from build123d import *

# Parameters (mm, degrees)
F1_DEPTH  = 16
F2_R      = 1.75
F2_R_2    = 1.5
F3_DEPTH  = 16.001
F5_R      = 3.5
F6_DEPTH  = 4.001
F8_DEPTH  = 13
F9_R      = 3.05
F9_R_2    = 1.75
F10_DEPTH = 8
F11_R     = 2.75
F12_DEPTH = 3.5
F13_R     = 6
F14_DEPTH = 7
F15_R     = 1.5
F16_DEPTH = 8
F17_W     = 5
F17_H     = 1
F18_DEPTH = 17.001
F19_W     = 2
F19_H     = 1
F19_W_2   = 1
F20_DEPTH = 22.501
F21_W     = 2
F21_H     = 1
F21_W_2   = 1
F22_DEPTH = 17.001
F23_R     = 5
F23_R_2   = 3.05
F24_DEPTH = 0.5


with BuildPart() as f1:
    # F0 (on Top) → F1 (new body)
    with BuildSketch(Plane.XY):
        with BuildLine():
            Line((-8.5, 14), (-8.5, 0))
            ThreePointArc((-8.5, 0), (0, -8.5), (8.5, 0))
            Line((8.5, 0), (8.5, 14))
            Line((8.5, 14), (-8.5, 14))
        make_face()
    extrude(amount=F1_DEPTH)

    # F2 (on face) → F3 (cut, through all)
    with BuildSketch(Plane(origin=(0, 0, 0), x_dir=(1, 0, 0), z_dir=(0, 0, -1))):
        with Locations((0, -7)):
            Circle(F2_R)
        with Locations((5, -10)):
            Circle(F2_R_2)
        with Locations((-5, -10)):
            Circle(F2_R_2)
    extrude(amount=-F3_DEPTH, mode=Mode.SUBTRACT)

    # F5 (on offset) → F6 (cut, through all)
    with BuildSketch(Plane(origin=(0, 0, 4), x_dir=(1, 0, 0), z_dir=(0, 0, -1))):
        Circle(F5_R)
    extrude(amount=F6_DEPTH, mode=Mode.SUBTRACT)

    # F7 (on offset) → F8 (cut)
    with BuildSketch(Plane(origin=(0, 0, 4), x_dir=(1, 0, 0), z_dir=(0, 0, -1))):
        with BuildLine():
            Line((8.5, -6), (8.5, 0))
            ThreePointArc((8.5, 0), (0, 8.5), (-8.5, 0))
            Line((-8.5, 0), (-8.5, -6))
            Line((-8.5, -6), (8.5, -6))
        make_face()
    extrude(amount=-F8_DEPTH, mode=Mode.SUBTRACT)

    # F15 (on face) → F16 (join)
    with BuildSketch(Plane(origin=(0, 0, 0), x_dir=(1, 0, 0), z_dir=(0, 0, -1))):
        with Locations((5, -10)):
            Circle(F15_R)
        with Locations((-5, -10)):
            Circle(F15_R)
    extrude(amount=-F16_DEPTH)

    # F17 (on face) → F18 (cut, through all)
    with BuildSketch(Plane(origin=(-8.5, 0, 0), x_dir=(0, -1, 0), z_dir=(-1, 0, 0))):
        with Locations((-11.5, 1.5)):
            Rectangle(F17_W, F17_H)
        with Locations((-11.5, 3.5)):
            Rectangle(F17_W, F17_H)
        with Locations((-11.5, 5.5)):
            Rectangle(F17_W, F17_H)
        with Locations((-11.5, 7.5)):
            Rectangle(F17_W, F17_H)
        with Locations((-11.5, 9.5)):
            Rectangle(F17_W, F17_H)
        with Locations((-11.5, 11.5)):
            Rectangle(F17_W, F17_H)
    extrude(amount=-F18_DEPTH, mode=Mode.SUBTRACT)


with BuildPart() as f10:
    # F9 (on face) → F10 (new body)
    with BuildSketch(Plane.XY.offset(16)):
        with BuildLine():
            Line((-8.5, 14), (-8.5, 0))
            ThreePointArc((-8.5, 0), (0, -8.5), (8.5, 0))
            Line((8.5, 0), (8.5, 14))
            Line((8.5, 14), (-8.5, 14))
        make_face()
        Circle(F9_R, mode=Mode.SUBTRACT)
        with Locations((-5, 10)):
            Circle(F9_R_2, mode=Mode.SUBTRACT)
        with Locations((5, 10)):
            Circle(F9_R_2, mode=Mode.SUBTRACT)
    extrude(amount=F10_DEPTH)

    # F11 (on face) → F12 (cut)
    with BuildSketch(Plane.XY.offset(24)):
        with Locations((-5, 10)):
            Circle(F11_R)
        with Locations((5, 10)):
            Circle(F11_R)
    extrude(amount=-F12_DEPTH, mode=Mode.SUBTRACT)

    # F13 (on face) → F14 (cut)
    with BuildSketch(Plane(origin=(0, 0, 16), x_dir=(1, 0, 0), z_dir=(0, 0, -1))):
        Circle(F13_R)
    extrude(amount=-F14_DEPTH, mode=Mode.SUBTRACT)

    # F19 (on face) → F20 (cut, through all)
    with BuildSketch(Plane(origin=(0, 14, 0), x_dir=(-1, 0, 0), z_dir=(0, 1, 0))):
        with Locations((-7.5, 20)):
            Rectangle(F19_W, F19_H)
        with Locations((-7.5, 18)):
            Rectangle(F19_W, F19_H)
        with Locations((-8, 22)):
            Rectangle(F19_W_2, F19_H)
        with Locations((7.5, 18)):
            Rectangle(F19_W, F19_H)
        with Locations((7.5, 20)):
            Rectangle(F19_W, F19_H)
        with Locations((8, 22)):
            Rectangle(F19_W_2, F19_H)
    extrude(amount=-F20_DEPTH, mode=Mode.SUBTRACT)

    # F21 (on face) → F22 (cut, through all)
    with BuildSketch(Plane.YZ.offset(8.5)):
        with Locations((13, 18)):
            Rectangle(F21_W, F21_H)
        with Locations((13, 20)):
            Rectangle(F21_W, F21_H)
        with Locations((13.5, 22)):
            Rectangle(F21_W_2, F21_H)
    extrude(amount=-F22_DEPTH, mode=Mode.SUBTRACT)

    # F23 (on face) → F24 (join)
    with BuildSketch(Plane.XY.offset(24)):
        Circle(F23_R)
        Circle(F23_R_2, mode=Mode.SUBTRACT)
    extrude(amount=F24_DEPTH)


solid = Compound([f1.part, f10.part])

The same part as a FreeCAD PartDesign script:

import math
import FreeCAD as App
import Part
import Sketcher
from FreeCAD import Vector
Q = App.Units.Quantity


def add_polygon(sketch, points):
    """Adds a closed chain of lines whose ends are joined by coincident constraints."""
    first, n = sketch.GeometryCount, len(points)
    for a, b in zip(points, points[1:] + points[:1]):
        sketch.addGeometry(Part.LineSegment(App.Vector(*a, 0), App.Vector(*b, 0)), False)
    for i in range(n):
        sketch.addConstraint(Sketcher.Constraint("Coincident", first + i, 2, first + (i + 1) % n, 1))

doc = App.newDocument("Part")
body = doc.addObject("PartDesign::Body", "Body")

sketch1 = body.newObject("Sketcher::SketchObject", "Sketch")
sketch1.AttachmentSupport = (doc.getObject("XY_Plane"), [""])
sketch1.MapMode = "FlatFace"
sketch1.addGeometry([
    Part.LineSegment(Vector(-8, 14, 0), Vector(-8, 0, 0)),
    Part.ArcOfCircle(Part.Circle(Vector(0, 0, 0), Vector(0, 0, 1), 8), math.radians(180), math.radians(360)),
    Part.LineSegment(Vector(8, 0, 0), Vector(8, 14, 0)),
    Part.LineSegment(Vector(8, 14, 0), Vector(-8, 14, 0)),
], False)
sketch1.addConstraint([
    Sketcher.Constraint("Tangent", 0, 2, 1, 1),
    Sketcher.Constraint("Tangent", 1, 2, 2, 1),
    Sketcher.Constraint("Coincident", 2, 2, 3, 1),
    Sketcher.Constraint("Coincident", 3, 2, 0, 1),
    Sketcher.Constraint("Vertical", 0),
    Sketcher.Constraint("Vertical", 2),
    Sketcher.Constraint("Horizontal", 3),
    Sketcher.Constraint("Coincident", 1, 3, -1, 1),
    Sketcher.Constraint("Radius", 1, Q("8.5 mm")),
    Sketcher.Constraint("DistanceY", 0, 2, 0, 1, Q("14 mm")),
])
pad1 = body.newObject("PartDesign::Pad", "Pad")
pad1.Profile = sketch1
pad1.Length = 16

sketch2 = body.newObject("Sketcher::SketchObject", "Sketch001")
sketch2.AttachmentSupport = (doc.getObject("XY_Plane"), [""])
sketch2.MapMode = "FlatFace"
sketch2.addGeometry([
    Part.Circle(Vector(0, 7, 0), Vector(0, 0, 1), 1.8),
    Part.Circle(Vector(5, 10, 0), Vector(0, 0, 1), 1.5),
    Part.Circle(Vector(-5, 10, 0), Vector(0, 0, 1), 1.5),
], False)
sketch2.addConstraint([
    Sketcher.Constraint("Equal", 1, 2),
    Sketcher.Constraint("Symmetric", 1, 3, 2, 3, -2),
    Sketcher.Constraint("PointOnObject", 0, 3, -2),
    Sketcher.Constraint("Diameter", 1, Q("3 mm")),
    Sketcher.Constraint("Diameter", 0, Q("3.5 mm")),
    Sketcher.Constraint("DistanceY", -1, 1, 0, 3, Q("7 mm")),
    Sketcher.Constraint("DistanceX", -1, 1, 1, 3, Q("5 mm")),
    Sketcher.Constraint("DistanceY", -1, 1, 1, 3, Q("10 mm")),
])
pocket1 = body.newObject("PartDesign::Pocket", "Pocket")
pocket1.Profile = sketch2
pocket1.Type = "ThroughAll"
pocket1.Reversed = True

sketch3 = body.newObject("Sketcher::SketchObject", "Sketch002")
sketch3.AttachmentSupport = (doc.getObject("XY_Plane"), [""])
sketch3.MapMode = "FlatFace"
sketch3.AttachmentOffset = App.Placement(Vector(0, 0, 4), App.Rotation())
sketch3.addGeometry(Part.Circle(Vector(0, 0, 0), Vector(0, 0, 1), 3.5), False)
sketch3.addConstraint([
    Sketcher.Constraint("Coincident", 0, 3, -1, 1),
    Sketcher.Constraint("Diameter", 0, Q("7 mm")),
])
pocket2 = body.newObject("PartDesign::Pocket", "Pocket001")
pocket2.Profile = sketch3
pocket2.Type = "ThroughAll"

sketch4 = body.newObject("Sketcher::SketchObject", "Sketch003")
sketch4.AttachmentSupport = (doc.getObject("XY_Plane"), [""])
sketch4.MapMode = "FlatFace"
sketch4.AttachmentOffset = App.Placement(Vector(0, 0, 4), App.Rotation())
sketch4.addGeometry([
    Part.LineSegment(Vector(8, 6, 0), Vector(8, 0, 0)),
    Part.ArcOfCircle(Part.Circle(Vector(0, 0, 0), Vector(0, 0, 1), 8), math.radians(180), math.radians(360)),
    Part.LineSegment(Vector(-8, 0, 0), Vector(-8, 6, 0)),
    Part.LineSegment(Vector(-8, 6, 0), Vector(8, 6, 0)),
], False)
sketch4.addConstraint([
    Sketcher.Constraint("Tangent", 0, 2, 1, 2),
    Sketcher.Constraint("Tangent", 1, 1, 2, 1),
    Sketcher.Constraint("Coincident", 2, 2, 3, 1),
    Sketcher.Constraint("Coincident", 3, 2, 0, 1),
    Sketcher.Constraint("Vertical", 0),
    Sketcher.Constraint("Vertical", 2),
    Sketcher.Constraint("Horizontal", 3),
    Sketcher.Constraint("Coincident", 1, 3, -1, 1),
    Sketcher.Constraint("Radius", 1, Q("8.5 mm")),
    Sketcher.Constraint("DistanceY", 0, 2, 0, 1, Q("6 mm")),
])
pocket3 = body.newObject("PartDesign::Pocket", "Pocket002")
pocket3.Profile = sketch4
pocket3.Length = 13
pocket3.Reversed = True

sketch5 = body.newObject("Sketcher::SketchObject", "Sketch004")
sketch5.AttachmentSupport = (doc.getObject("XY_Plane"), [""])
sketch5.MapMode = "FlatFace"
sketch5.addGeometry([
    Part.Circle(Vector(5, 10, 0), Vector(0, 0, 1), 1.5),
    Part.Circle(Vector(-5, 10, 0), Vector(0, 0, 1), 1.5),
], False)
sketch5.addConstraint([
    Sketcher.Constraint("Equal", 0, 1),
    Sketcher.Constraint("Symmetric", 0, 3, 1, 3, -2),
    Sketcher.Constraint("Diameter", 0, Q("3 mm")),
    Sketcher.Constraint("DistanceX", -1, 1, 0, 3, Q("5 mm")),
    Sketcher.Constraint("DistanceY", -1, 1, 0, 3, Q("10 mm")),
])
pad2 = body.newObject("PartDesign::Pad", "Pad001")
pad2.Profile = sketch5
pad2.Length = 8

sketch6 = body.newObject("Sketcher::SketchObject", "Sketch005")
sketch6.AttachmentSupport = (doc.getObject("YZ_Plane"), [""])
sketch6.MapMode = "FlatFace"
sketch6.AttachmentOffset = App.Placement(Vector(0, 0, -8.5), App.Rotation())
add_polygon(sketch6, [(14, 2), (14, 1), (9, 1), (9, 2)])
add_polygon(sketch6, [(14, 4), (14, 3), (9, 3), (9, 4)])
add_polygon(sketch6, [(14, 6), (14, 5), (9, 5), (9, 6)])
add_polygon(sketch6, [(14, 8), (14, 7), (9, 7), (9, 8)])
add_polygon(sketch6, [(14, 10), (14, 9), (9, 9), (9, 10)])
add_polygon(sketch6, [(14, 12), (14, 11), (9, 11), (9, 12)])
sketch6.addConstraint([
    Sketcher.Constraint("Vertical", 0),
    Sketcher.Constraint("Horizontal", 1),
    Sketcher.Constraint("Vertical", 2),
    Sketcher.Constraint("Horizontal", 3),
    Sketcher.Constraint("Vertical", 4),
    Sketcher.Constraint("Horizontal", 5),
    Sketcher.Constraint("Vertical", 6),
    Sketcher.Constraint("Horizontal", 7),
    Sketcher.Constraint("Vertical", 8),
    Sketcher.Constraint("Horizontal", 9),
    Sketcher.Constraint("Vertical", 10),
    Sketcher.Constraint("Horizontal", 11),
    Sketcher.Constraint("Vertical", 12),
    Sketcher.Constraint("Horizontal", 13),
    Sketcher.Constraint("Vertical", 14),
    Sketcher.Constraint("Horizontal", 15),
    Sketcher.Constraint("Vertical", 16),
    Sketcher.Constraint("Horizontal", 17),
    Sketcher.Constraint("Vertical", 18),
    Sketcher.Constraint("Horizontal", 19),
    Sketcher.Constraint("Vertical", 20),
    Sketcher.Constraint("Horizontal", 21),
    Sketcher.Constraint("Vertical", 22),
    Sketcher.Constraint("Horizontal", 23),
    Sketcher.Constraint("Vertical", 3, 2, 4, 2),
    Sketcher.Constraint("Vertical", 2, 2, 5, 2),
    Sketcher.Constraint("Vertical", 7, 2, 8, 2),
    Sketcher.Constraint("Vertical", 6, 2, 9, 2),
    Sketcher.Constraint("Vertical", 11, 2, 12, 2),
    Sketcher.Constraint("Vertical", 10, 2, 13, 2),
    Sketcher.Constraint("Vertical", 15, 2, 16, 2),
    Sketcher.Constraint("Vertical", 14, 2, 17, 2),
    Sketcher.Constraint("Vertical", 19, 2, 20, 2),
    Sketcher.Constraint("Vertical", 18, 2, 21, 2),
    Sketcher.Constraint("Equal", 2, 4),
    Sketcher.Constraint("Equal", 6, 8),
    Sketcher.Constraint("Equal", 10, 12),
    Sketcher.Constraint("Equal", 14, 16),
    Sketcher.Constraint("Equal", 18, 20),
    Sketcher.Constraint("DistanceX", 1, 2, 1, 1, Q("5 mm")),
    Sketcher.Constraint("DistanceY", 0, 2, 0, 1, Q("1 mm")),
    Sketcher.Constraint("DistanceX", -1, 1, 0, 2, Q("14 mm")),
    Sketcher.Constraint("DistanceY", -1, 1, 0, 2, Q("1 mm")),
    Sketcher.Constraint("DistanceY", -1, 1, 4, 2, Q("3 mm")),
    Sketcher.Constraint("DistanceY", -1, 1, 8, 2, Q("5 mm")),
    Sketcher.Constraint("DistanceY", -1, 1, 12, 2, Q("7 mm")),
    Sketcher.Constraint("DistanceY", -1, 1, 16, 2, Q("9 mm")),
    Sketcher.Constraint("DistanceY", -1, 1, 20, 2, Q("11 mm")),
])
pocket4 = body.newObject("PartDesign::Pocket", "Pocket003")
pocket4.Profile = sketch6
pocket4.Type = "ThroughAll"
pocket4.Reversed = True
body2 = doc.addObject("PartDesign::Body", "Body001")

sketch7 = body2.newObject("Sketcher::SketchObject", "Sketch006")
sketch7.AttachmentSupport = (doc.getObject("XY_Plane001"), [""])
sketch7.MapMode = "FlatFace"
sketch7.AttachmentOffset = App.Placement(Vector(0, 0, 16), App.Rotation())
sketch7.addGeometry([
    Part.LineSegment(Vector(-8.5, 14, 0), Vector(-8.5, 0, 0)),
    Part.ArcOfCircle(Part.Circle(Vector(0, 0, 0), Vector(0, 0, 1), 8.5), math.radians(180), math.radians(360)),
    Part.LineSegment(Vector(8.5, 0, 0), Vector(8.5, 14, 0)),
    Part.LineSegment(Vector(8.5, 14, 0), Vector(-8.5, 14, 0)),
    Part.Circle(Vector(0, 0, 0), Vector(0, 0, 1), 3),
    Part.Circle(Vector(-5, 10, 0), Vector(0, 0, 1), 1.8),
    Part.Circle(Vector(5, 10, 0), Vector(0, 0, 1), 1.8),
], False)
sketch7.addConstraint([
    Sketcher.Constraint("Tangent", 0, 2, 1, 1),
    Sketcher.Constraint("Tangent", 1, 2, 2, 1),
    Sketcher.Constraint("Coincident", 2, 2, 3, 1),
    Sketcher.Constraint("Coincident", 3, 2, 0, 1),
    Sketcher.Constraint("Vertical", 0),
    Sketcher.Constraint("Vertical", 2),
    Sketcher.Constraint("Horizontal", 3),
    Sketcher.Constraint("Coincident", 1, 3, -1, 1),
    Sketcher.Constraint("Coincident", 4, 3, -1, 1),
    Sketcher.Constraint("Equal", 5, 6),
    Sketcher.Constraint("Symmetric", 5, 3, 6, 3, -2),
    Sketcher.Constraint("Diameter", 4, Q("6.1 mm")),
    Sketcher.Constraint("Diameter", 5, Q("3.5 mm")),
    Sketcher.Constraint("Radius", 1, Q("8.5 mm")),
    Sketcher.Constraint("DistanceY", 0, 2, 0, 1, Q("14 mm")),
    Sketcher.Constraint("DistanceX", 5, 3, -1, 1, Q("5 mm")),
    Sketcher.Constraint("DistanceY", -1, 1, 5, 3, Q("10 mm")),
])
pad3 = body2.newObject("PartDesign::Pad", "Pad002")
pad3.Profile = sketch7
pad3.Length = 8

sketch8 = body2.newObject("Sketcher::SketchObject", "Sketch007")
sketch8.AttachmentSupport = (doc.getObject("XY_Plane001"), [""])
sketch8.MapMode = "FlatFace"
sketch8.AttachmentOffset = App.Placement(Vector(0, 0, 24), App.Rotation())
sketch8.addGeometry([
    Part.Circle(Vector(-5, 10, 0), Vector(0, 0, 1), 2.8),
    Part.Circle(Vector(5, 10, 0), Vector(0, 0, 1), 2.8),
], False)
sketch8.addConstraint([
    Sketcher.Constraint("Equal", 0, 1),
    Sketcher.Constraint("Symmetric", 0, 3, 1, 3, -2),
    Sketcher.Constraint("Diameter", 0, Q("5.5 mm")),
    Sketcher.Constraint("DistanceX", 0, 3, -1, 1, Q("5 mm")),
    Sketcher.Constraint("DistanceY", -1, 1, 0, 3, Q("10 mm")),
])
pocket5 = body2.newObject("PartDesign::Pocket", "Pocket004")
pocket5.Profile = sketch8
pocket5.Length = 3.5

sketch9 = body2.newObject("Sketcher::SketchObject", "Sketch008")
sketch9.AttachmentSupport = (doc.getObject("XY_Plane001"), [""])
sketch9.MapMode = "FlatFace"
sketch9.AttachmentOffset = App.Placement(Vector(0, 0, 16), App.Rotation())
sketch9.addGeometry(Part.Circle(Vector(0, 0, 0), Vector(0, 0, 1), 6), False)
sketch9.addConstraint([
    Sketcher.Constraint("Coincident", 0, 3, -1, 1),
    Sketcher.Constraint("Diameter", 0, Q("12 mm")),
])
pocket6 = body2.newObject("PartDesign::Pocket", "Pocket005")
pocket6.Profile = sketch9
pocket6.Length = 7
pocket6.Reversed = True

sketch10 = body2.newObject("Sketcher::SketchObject", "Sketch009")
sketch10.AttachmentSupport = (doc.getObject("XZ_Plane001"), [""])
sketch10.MapMode = "FlatFace"
sketch10.AttachmentOffset = App.Placement(Vector(0, 0, -14), App.Rotation())
add_polygon(sketch10, [(8.5, 20.5), (8.5, 19.5), (6.5, 19.5), (6.5, 20.5)])
add_polygon(sketch10, [(8.5, 18.5), (8.5, 17.5), (6.5, 17.5), (6.5, 18.5)])
add_polygon(sketch10, [(8.5, 22.5), (8.5, 21.5), (7.5, 21.5), (7.5, 22.5)])
add_polygon(sketch10, [(-6.5, 18.5), (-6.5, 17.5), (-8.5, 17.5), (-8.5, 18.5)])
add_polygon(sketch10, [(-6.5, 20.5), (-6.5, 19.5), (-8.5, 19.5), (-8.5, 20.5)])
add_polygon(sketch10, [(-7.5, 22.5), (-7.5, 21.5), (-8.5, 21.5), (-8.5, 22.5)])
sketch10.addConstraint([
    Sketcher.Constraint("Vertical", 0),
    Sketcher.Constraint("Horizontal", 1),
    Sketcher.Constraint("Vertical", 2),
    Sketcher.Constraint("Horizontal", 3),
    Sketcher.Constraint("Vertical", 4),
    Sketcher.Constraint("Horizontal", 5),
    Sketcher.Constraint("Vertical", 6),
    Sketcher.Constraint("Horizontal", 7),
    Sketcher.Constraint("Vertical", 8),
    Sketcher.Constraint("Horizontal", 9),
    Sketcher.Constraint("Vertical", 10),
    Sketcher.Constraint("Horizontal", 11),
    Sketcher.Constraint("Vertical", 12),
    Sketcher.Constraint("Horizontal", 13),
    Sketcher.Constraint("Vertical", 14),
    Sketcher.Constraint("Horizontal", 15),
    Sketcher.Constraint("Vertical", 16),
    Sketcher.Constraint("Horizontal", 17),
    Sketcher.Constraint("Vertical", 18),
    Sketcher.Constraint("Horizontal", 19),
    Sketcher.Constraint("Vertical", 20),
    Sketcher.Constraint("Horizontal", 21),
    Sketcher.Constraint("Vertical", 22),
    Sketcher.Constraint("Horizontal", 23),
    Sketcher.Constraint("Symmetric", 5, 2, 12, 2, -2),
    Sketcher.Constraint("Symmetric", 7, 2, 14, 2, -2),
    Sketcher.Constraint("Symmetric", 1, 2, 16, 2, -2),
    Sketcher.Constraint("Symmetric", 3, 2, 18, 2, -2),
    Sketcher.Constraint("Symmetric", 9, 2, 20, 2, -2),
    Sketcher.Constraint("Symmetric", 11, 2, 22, 2, -2),
    Sketcher.Constraint("Vertical", 3, 2, 4, 2),
    Sketcher.Constraint("Vertical", 2, 2, 5, 2),
    Sketcher.Constraint("Vertical", 7, 2, 8, 2),
    Sketcher.Constraint("Equal", 23, 0),
    Sketcher.Constraint("Equal", 2, 4),
    Sketcher.Constraint("Equal", 6, 8),
    Sketcher.Constraint("DistanceX", 1, 2, 1, 1, Q("2 mm")),
    Sketcher.Constraint("DistanceX", 9, 2, 9, 1, Q("1 mm")),
    Sketcher.Constraint("DistanceY", 4, 2, 0, 2, Q("2 mm")),
    Sketcher.Constraint("DistanceY", 3, 2, 8, 2, Q("1 mm")),
    Sketcher.Constraint("DistanceX", 12, 2, 5, 2, Q("13 mm")),
    Sketcher.Constraint("DistanceY", -1, 1, 0, 2, Q("19.5 mm")),
])
pocket7 = body2.newObject("PartDesign::Pocket", "Pocket006")
pocket7.Profile = sketch10
pocket7.Type = "ThroughAll"
pocket7.Reversed = True

sketch11 = body2.newObject("Sketcher::SketchObject", "Sketch010")
sketch11.AttachmentSupport = (doc.getObject("YZ_Plane001"), [""])
sketch11.MapMode = "FlatFace"
sketch11.AttachmentOffset = App.Placement(Vector(0, 0, 8.5), App.Rotation())
add_polygon(sketch11, [(12, 18.5), (12, 17.5), (14, 17.5), (14, 18.5)])
add_polygon(sketch11, [(12, 20.5), (12, 19.5), (14, 19.5), (14, 20.5)])
add_polygon(sketch11, [(13, 22.5), (13, 21.5), (14, 21.5), (14, 22.5)])
sketch11.addConstraint([
    Sketcher.Constraint("Vertical", 0),
    Sketcher.Constraint("Horizontal", 1),
    Sketcher.Constraint("Vertical", 2),
    Sketcher.Constraint("Horizontal", 3),
    Sketcher.Constraint("Vertical", 4),
    Sketcher.Constraint("Horizontal", 5),
    Sketcher.Constraint("Vertical", 6),
    Sketcher.Constraint("Horizontal", 7),
    Sketcher.Constraint("Vertical", 8),
    Sketcher.Constraint("Horizontal", 9),
    Sketcher.Constraint("Vertical", 10),
    Sketcher.Constraint("Horizontal", 11),
    Sketcher.Constraint("Vertical", 3, 2, 4, 2),
    Sketcher.Constraint("Vertical", 2, 2, 5, 2),
    Sketcher.Constraint("Vertical", 6, 2, 9, 2),
    Sketcher.Constraint("Equal", 11, 0),
    Sketcher.Constraint("Equal", 2, 4),
    Sketcher.Constraint("Equal", 6, 8),
    Sketcher.Constraint("DistanceX", 1, 1, 1, 2, Q("2 mm")),
    Sketcher.Constraint("DistanceX", 9, 1, 9, 2, Q("1 mm")),
    Sketcher.Constraint("DistanceX", -1, 1, 0, 2, Q("12 mm")),
    Sketcher.Constraint("DistanceY", 3, 2, 4, 2, Q("1 mm")),
    Sketcher.Constraint("DistanceY", 6, 2, 8, 2, Q("1 mm")),
    Sketcher.Constraint("DistanceY", -1, 1, 0, 2, Q("17.5 mm")),
])
pocket8 = body2.newObject("PartDesign::Pocket", "Pocket007")
pocket8.Profile = sketch11
pocket8.Type = "ThroughAll"

sketch12 = body2.newObject("Sketcher::SketchObject", "Sketch011")
sketch12.AttachmentSupport = (doc.getObject("XY_Plane001"), [""])
sketch12.MapMode = "FlatFace"
sketch12.AttachmentOffset = App.Placement(Vector(0, 0, 24), App.Rotation())
sketch12.addGeometry([
    Part.Circle(Vector(0, 0, 0), Vector(0, 0, 1), 5),
    Part.Circle(Vector(0, 0, 0), Vector(0, 0, 1), 3),
], False)
sketch12.addConstraint([
    Sketcher.Constraint("Coincident", 0, 3, -1, 1),
    Sketcher.Constraint("Coincident", 1, 3, -1, 1),
    Sketcher.Constraint("Diameter", 0, Q("10 mm")),
    Sketcher.Constraint("Diameter", 1, Q("6.1 mm")),
])
pad4 = body2.newObject("PartDesign::Pad", "Pad003")
pad4.Profile = sketch12
pad4.Length = 0.5

doc.recompute()
